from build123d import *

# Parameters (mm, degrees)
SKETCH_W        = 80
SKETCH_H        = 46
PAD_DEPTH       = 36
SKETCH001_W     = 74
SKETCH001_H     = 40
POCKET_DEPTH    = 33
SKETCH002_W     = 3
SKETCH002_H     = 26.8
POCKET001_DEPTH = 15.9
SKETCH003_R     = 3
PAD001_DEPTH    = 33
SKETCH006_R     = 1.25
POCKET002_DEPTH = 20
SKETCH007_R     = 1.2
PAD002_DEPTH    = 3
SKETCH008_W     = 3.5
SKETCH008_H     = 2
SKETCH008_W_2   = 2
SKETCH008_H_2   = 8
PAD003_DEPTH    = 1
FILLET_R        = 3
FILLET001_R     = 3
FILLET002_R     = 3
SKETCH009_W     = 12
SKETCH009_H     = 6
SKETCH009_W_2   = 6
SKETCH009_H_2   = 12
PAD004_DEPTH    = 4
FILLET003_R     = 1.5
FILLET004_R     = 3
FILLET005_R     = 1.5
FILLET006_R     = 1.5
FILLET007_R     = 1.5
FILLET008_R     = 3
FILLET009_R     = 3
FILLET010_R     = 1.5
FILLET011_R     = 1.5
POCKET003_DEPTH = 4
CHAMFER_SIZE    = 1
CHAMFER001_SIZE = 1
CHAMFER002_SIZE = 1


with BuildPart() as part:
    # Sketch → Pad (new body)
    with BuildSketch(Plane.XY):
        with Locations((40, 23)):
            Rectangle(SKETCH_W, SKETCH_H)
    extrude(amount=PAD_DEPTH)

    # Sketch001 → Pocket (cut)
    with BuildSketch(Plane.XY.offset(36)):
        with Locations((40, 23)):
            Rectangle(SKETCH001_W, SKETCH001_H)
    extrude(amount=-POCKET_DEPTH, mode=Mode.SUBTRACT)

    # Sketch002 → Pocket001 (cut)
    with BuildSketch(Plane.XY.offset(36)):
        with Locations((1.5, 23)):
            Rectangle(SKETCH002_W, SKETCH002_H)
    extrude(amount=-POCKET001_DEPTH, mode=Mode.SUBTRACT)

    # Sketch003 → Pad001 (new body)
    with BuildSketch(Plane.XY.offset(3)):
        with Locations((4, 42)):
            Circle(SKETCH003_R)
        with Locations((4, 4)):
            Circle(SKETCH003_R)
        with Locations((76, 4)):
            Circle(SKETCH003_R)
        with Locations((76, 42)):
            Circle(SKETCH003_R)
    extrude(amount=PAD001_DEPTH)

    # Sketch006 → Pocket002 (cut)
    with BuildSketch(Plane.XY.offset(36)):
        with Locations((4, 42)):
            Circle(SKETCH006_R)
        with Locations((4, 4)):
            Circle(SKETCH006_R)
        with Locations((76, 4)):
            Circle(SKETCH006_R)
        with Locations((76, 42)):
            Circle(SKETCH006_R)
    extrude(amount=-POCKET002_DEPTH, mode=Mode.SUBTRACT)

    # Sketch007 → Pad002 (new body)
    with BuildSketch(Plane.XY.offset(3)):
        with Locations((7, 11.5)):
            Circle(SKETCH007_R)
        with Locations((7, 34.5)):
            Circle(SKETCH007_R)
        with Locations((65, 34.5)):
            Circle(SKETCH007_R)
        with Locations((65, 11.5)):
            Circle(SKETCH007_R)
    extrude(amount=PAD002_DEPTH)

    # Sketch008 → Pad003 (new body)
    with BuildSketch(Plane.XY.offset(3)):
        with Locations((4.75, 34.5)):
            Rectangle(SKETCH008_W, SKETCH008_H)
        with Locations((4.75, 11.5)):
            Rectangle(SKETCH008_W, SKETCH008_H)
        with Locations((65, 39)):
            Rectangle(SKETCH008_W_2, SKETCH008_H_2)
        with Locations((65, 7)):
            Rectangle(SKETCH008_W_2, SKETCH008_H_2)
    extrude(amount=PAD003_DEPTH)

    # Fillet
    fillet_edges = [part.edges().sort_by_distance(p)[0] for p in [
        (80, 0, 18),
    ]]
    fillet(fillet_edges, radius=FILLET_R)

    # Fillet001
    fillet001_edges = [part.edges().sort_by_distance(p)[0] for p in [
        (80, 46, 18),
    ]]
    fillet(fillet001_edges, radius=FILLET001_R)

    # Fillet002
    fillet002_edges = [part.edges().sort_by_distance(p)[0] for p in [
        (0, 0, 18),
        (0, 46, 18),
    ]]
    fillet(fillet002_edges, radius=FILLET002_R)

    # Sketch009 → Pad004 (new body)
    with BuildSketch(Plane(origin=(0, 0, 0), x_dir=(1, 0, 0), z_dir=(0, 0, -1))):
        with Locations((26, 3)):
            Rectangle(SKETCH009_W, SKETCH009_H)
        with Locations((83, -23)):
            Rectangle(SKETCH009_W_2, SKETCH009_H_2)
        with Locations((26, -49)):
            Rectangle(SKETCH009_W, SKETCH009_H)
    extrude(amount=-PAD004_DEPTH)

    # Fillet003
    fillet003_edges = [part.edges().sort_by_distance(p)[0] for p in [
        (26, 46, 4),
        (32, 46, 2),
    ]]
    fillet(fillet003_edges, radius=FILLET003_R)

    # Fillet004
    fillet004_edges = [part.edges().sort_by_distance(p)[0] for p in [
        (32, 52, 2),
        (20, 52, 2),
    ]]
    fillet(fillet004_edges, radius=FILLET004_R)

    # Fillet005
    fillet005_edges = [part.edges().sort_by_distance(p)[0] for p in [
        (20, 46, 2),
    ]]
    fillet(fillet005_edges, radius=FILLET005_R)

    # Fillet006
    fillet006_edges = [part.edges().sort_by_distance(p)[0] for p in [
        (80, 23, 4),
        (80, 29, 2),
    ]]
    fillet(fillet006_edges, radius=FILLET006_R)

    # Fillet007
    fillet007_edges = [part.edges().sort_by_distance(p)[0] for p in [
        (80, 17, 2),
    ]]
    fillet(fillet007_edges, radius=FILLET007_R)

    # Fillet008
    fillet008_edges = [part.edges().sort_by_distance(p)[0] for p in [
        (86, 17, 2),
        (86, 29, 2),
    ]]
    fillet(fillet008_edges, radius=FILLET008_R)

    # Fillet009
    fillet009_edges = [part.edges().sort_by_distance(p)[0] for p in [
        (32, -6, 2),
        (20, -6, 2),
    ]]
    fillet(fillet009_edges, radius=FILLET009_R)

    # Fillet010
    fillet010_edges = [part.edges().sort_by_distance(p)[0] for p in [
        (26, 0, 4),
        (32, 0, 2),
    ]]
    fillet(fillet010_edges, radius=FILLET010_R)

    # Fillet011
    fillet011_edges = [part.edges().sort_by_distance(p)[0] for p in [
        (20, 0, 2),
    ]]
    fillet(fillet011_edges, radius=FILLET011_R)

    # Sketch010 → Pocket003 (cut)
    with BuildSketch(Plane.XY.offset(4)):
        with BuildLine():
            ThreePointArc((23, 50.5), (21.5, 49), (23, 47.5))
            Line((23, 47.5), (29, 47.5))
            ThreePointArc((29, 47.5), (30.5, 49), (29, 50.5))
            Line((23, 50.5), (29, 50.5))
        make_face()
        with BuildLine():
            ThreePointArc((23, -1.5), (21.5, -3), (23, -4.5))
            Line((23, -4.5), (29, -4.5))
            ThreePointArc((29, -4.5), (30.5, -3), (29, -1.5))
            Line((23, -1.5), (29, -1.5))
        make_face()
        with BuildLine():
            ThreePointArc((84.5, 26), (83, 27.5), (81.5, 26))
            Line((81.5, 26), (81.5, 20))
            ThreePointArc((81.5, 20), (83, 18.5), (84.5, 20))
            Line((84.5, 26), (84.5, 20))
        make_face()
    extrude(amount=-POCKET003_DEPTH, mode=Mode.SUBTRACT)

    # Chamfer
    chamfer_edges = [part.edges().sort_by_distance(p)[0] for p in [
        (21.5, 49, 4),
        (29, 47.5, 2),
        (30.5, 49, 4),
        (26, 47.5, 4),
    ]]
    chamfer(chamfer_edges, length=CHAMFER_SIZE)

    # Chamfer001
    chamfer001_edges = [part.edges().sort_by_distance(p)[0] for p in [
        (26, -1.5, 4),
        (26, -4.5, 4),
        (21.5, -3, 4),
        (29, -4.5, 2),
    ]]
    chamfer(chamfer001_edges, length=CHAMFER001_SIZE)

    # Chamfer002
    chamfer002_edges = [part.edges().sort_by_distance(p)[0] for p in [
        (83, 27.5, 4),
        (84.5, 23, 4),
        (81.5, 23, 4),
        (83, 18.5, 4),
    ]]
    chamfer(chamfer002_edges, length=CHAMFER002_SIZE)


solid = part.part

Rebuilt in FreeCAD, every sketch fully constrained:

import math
import FreeCAD as App
import Part
import Sketcher


def edges_at(feature, points):
    """Names of the edges that pass closest to the given points."""
    edges = feature.Shape.Edges
    near = lambda p: min(range(len(edges)), key=lambda i: edges[i].distToShape(Part.Vertex(*p))[0])
    return sorted({f"Edge{near(p) + 1}" for p in points})

doc = App.newDocument("Part")
params = doc.addObject("Spreadsheet::Sheet", "Params")
for row, (alias, value) in enumerate([
    ("sketch1_width", "80 mm"),
    ("sketch1_height", "46 mm"),
    ("pad1_length", "36 mm"),
    ("sketch2_width", "74 mm"),
    ("sketch2_height", "40 mm"),
    ("pocket1_length", "33 mm"),
    ("sketch3_width", "3 mm"),
    ("sketch3_height", "26.8 mm"),
    ("pocket2_length", "15.9 mm"),
    ("sketch4_diameter", "6 mm"),
    ("pad2_length", "33 mm"),
    ("sketch5_diameter", "2.5 mm"),
    ("pocket3_length", "20 mm"),
    ("sketch6_diameter", "2.4 mm"),
    ("pad3_length", "3 mm"),
    ("sketch7_width", "2 mm"),
    ("sketch7_height", "8 mm"),
    ("sketch7_width2", "3.5 mm"),
    ("pad4_length", "1 mm"),
    ("fillet_radius", "3 mm"),
    ("fillet2_radius", "3 mm"),
    ("fillet3_radius", "3 mm"),
    ("sketch8_width", "12 mm"),
    ("sketch8_width2", "6 mm"),
    ("pad5_length", "4 mm"),
    ("fillet4_radius", "1.5 mm"),
    ("fillet5_radius", "3 mm"),
    ("fillet6_radius", "1.5 mm"),
    ("fillet7_radius", "1.5 mm"),
    ("fillet8_radius", "1.5 mm"),
    ("fillet9_radius", "3 mm"),
    ("fillet10_radius", "3 mm"),
    ("fillet11_radius", "1.5 mm"),
    ("fillet12_radius", "1.5 mm"),
    ("sketch9_radius", "1.5 mm"),
    ("sketch9_width", "6 mm"),
    ("pocket4_length", "4 mm"),
    ("chamfer_size", "1 mm"),
    ("chamfer2_size", "1 mm"),
    ("chamfer3_size", "1 mm"),
], start=1):
    params.set(f"A{row}", alias)
    params.set(f"B{row}", "=" + value)
    params.setAlias(f"B{row}", alias)

body = doc.addObject("PartDesign::Body", "Body")

sketch1 = body.newObject("Sketcher::SketchObject", "Sketch")
sketch1.AttachmentSupport = (doc.getObject("XY_Plane"), [""])
sketch1.MapMode = "FlatFace"
sketch1.addGeometry([
    Part.LineSegment(App.Vector(0, 46, 0), App.Vector(0, 0, 0)),
    Part.LineSegment(App.Vector(0, 0, 0), App.Vector(80, 0, 0)),
    Part.LineSegment(App.Vector(80, 0, 0), App.Vector(80, 46, 0)),
    Part.LineSegment(App.Vector(80, 46, 0), App.Vector(0, 46, 0)),
], False)
sketch1.addConstraint([
    Sketcher.Constraint("Coincident", 0, 2, 1, 1),
    Sketcher.Constraint("Coincident", 1, 2, 2, 1),
    Sketcher.Constraint("Coincident", 2, 2, 3, 1),
    Sketcher.Constraint("Coincident", 3, 2, 0, 1),
    Sketcher.Constraint("Vertical", 0),
    Sketcher.Constraint("Horizontal", 1),
    Sketcher.Constraint("Vertical", 2),
    Sketcher.Constraint("Horizontal", 3),
    Sketcher.Constraint("Coincident", 0, 2, -1, 1),
    Sketcher.Constraint("DistanceX", 1, 1, 1, 2, 80.0),
    Sketcher.Constraint("DistanceY", 0, 2, 0, 1, 46.0),
])
sketch1.setExpression("Constraints[9]", "Params.sketch1_width")
sketch1.setExpression("Constraints[10]", "Params.sketch1_height")
pad1 = body.newObject("PartDesign::Pad", "Pad")
pad1.Profile = sketch1
pad1.setExpression("Length", "Params.pad1_length")

sketch2 = body.newObject("Sketcher::SketchObject", "Sketch001")
sketch2.AttachmentSupport = (doc.getObject("XY_Plane"), [""])
sketch2.MapMode = "FlatFace"
sketch2.AttachmentOffset = App.Placement(App.Vector(0, 0, 36), App.Rotation())
sketch2.addGeometry([
    Part.LineSegment(App.Vector(3, 43, 0), App.Vector(3, 3, 0)),
    Part.LineSegment(App.Vector(3, 3, 0), App.Vector(77, 3, 0)),
    Part.LineSegment(App.Vector(77, 3, 0), App.Vector(77, 43, 0)),
    Part.LineSegment(App.Vector(77, 43, 0), App.Vector(3, 43, 0)),
], False)
sketch2.addConstraint([
    Sketcher.Constraint("Coincident", 0, 2, 1, 1),
    Sketcher.Constraint("Coincident", 1, 2, 2, 1),
    Sketcher.Constraint("Coincident", 2, 2, 3, 1),
    Sketcher.Constraint("Coincident", 3, 2, 0, 1),
    Sketcher.Constraint("Vertical", 0),
    Sketcher.Constraint("Horizontal", 1),
    Sketcher.Constraint("Vertical", 2),
    Sketcher.Constraint("Horizontal", 3),
    Sketcher.Constraint("DistanceX", 1, 1, 1, 2, 74.0),
    Sketcher.Constraint("DistanceY", 0, 2, 0, 1, 40.0),
    Sketcher.Constraint("DistanceX", -1, 1, 0, 2, 3.0),
    Sketcher.Constraint("DistanceY", -1, 1, 0, 2, 3.0),
])
sketch2.setExpression("Constraints[8]", "Params.sketch2_width")
sketch2.setExpression("Constraints[9]", "Params.sketch2_height")
pocket1 = body.newObject("PartDesign::Pocket", "Pocket")
pocket1.Profile = sketch2
pocket1.setExpression("Length", "Params.pocket1_length")

sketch3 = body.newObject("Sketcher::SketchObject", "Sketch002")
sketch3.AttachmentSupport = (doc.getObject("XY_Plane"), [""])
sketch3.MapMode = "FlatFace"
sketch3.AttachmentOffset = App.Placement(App.Vector(0, 0, 36), App.Rotation())
sketch3.addGeometry([
    Part.LineSegment(App.Vector(0, 36.4, 0), App.Vector(0, 9.6, 0)),
    Part.LineSegment(App.Vector(0, 9.6, 0), App.Vector(3, 9.6, 0)),
    Part.LineSegment(App.Vector(3, 9.6, 0), App.Vector(3, 36.4, 0)),
    Part.LineSegment(App.Vector(3, 36.4, 0), App.Vector(0, 36.4, 0)),
], False)
sketch3.addConstraint([
    Sketcher.Constraint("Coincident", 0, 2, 1, 1),
    Sketcher.Constraint("Coincident", 1, 2, 2, 1),
    Sketcher.Constraint("Coincident", 2, 2, 3, 1),
    Sketcher.Constraint("Coincident", 3, 2, 0, 1),
    Sketcher.Constraint("Vertical", 0),
    Sketcher.Constraint("Horizontal", 1),
    Sketcher.Constraint("Vertical", 2),
    Sketcher.Constraint("Horizontal", 3),
    Sketcher.Constraint("PointOnObject", 0, 2, -2),
    Sketcher.Constraint("DistanceX", 1, 1, 1, 2, 3.0),
    Sketcher.Constraint("DistanceY", 0, 2, 0, 1, 26.8),
    Sketcher.Constraint("DistanceY", -1, 1, 0, 2, 9.6),
])
sketch3.setExpression("Constraints[9]", "Params.sketch3_width")
sketch3.setExpression("Constraints[10]", "Params.sketch3_height")
pocket2 = body.newObject("PartDesign::Pocket", "Pocket001")
pocket2.Profile = sketch3
pocket2.setExpression("Length", "Params.pocket2_length")

sketch4 = body.newObject("Sketcher::SketchObject", "Sketch003")
sketch4.AttachmentSupport = (doc.getObject("XY_Plane"), [""])
sketch4.MapMode = "FlatFace"
sketch4.AttachmentOffset = App.Placement(App.Vector(0, 0, 3), App.Rotation())
sketch4.addGeometry([
    Part.Circle(App.Vector(4, 42, 0), App.Vector(0, 0, 1), 3),
    Part.Circle(App.Vector(4, 4, 0), App.Vector(0, 0, 1), 3),
    Part.Circle(App.Vector(76, 4, 0), App.Vector(0, 0, 1), 3),
    Part.Circle(App.Vector(76, 42, 0), App.Vector(0, 0, 1), 3),
], False)
sketch4.addConstraint([
    Sketcher.Constraint("Equal", 0, 1),
    Sketcher.Constraint("Equal", 1, 2),
    Sketcher.Constraint("Equal", 2, 3),
    Sketcher.Constraint("Horizontal", 1, 3, 2, 3),
    Sketcher.Constraint("Horizontal", 0, 3, 3, 3),
    Sketcher.Constraint("Vertical", 0, 3, 1, 3),
    Sketcher.Constraint("Vertical", 2, 3, 3, 3),
    Sketcher.Constraint("Diameter", 0, 6.0),
    Sketcher.Constraint("DistanceX", -1, 1, 0, 3, 4.0),
    Sketcher.Constraint("DistanceY", -1, 1, 0, 3, 42.0),
    Sketcher.Constraint("DistanceY", -1, 1, 1, 3, 4.0),
    Sketcher.Constraint("DistanceX", -1, 1, 2, 3, 76.0),
])
sketch4.setExpression("Constraints[7]", "Params.sketch4_diameter")
pad2 = body.newObject("PartDesign::Pad", "Pad001")
pad2.Profile = sketch4
pad2.setExpression("Length", "Params.pad2_length")

sketch5 = body.newObject("Sketcher::SketchObject", "Sketch004")
sketch5.AttachmentSupport = (doc.getObject("XY_Plane"), [""])
sketch5.MapMode = "FlatFace"
sketch5.AttachmentOffset = App.Placement(App.Vector(0, 0, 36), App.Rotation())
sketch5.addGeometry([
    Part.Circle(App.Vector(4, 42, 0), App.Vector(0, 0, 1), 1.25),
    Part.Circle(App.Vector(4, 4, 0), App.Vector(0, 0, 1), 1.25),
    Part.Circle(App.Vector(76, 4, 0), App.Vector(0, 0, 1), 1.25),
    Part.Circle(App.Vector(76, 42, 0), App.Vector(0, 0, 1), 1.25),
], False)
sketch5.addConstraint([
    Sketcher.Constraint("Equal", 0, 1),
    Sketcher.Constraint("Equal", 1, 2),
    Sketcher.Constraint("Equal", 2, 3),
    Sketcher.Constraint("Horizontal", 1, 3, 2, 3),
    Sketcher.Constraint("Horizontal", 0, 3, 3, 3),
    Sketcher.Constraint("Vertical", 0, 3, 1, 3),
    Sketcher.Constraint("Vertical", 2, 3, 3, 3),
    Sketcher.Constraint("Diameter", 0, 2.5),
    Sketcher.Constraint("DistanceX", -1, 1, 0, 3, 4.0),
    Sketcher.Constraint("DistanceY", -1, 1, 0, 3, 42.0),
    Sketcher.Constraint("DistanceY", -1, 1, 1, 3, 4.0),
    Sketcher.Constraint("DistanceX", -1, 1, 2, 3, 76.0),
])
sketch5.setExpression("Constraints[7]", "Params.sketch5_diameter")
pocket3 = body.newObject("PartDesign::Pocket", "Pocket002")
pocket3.Profile = sketch5
pocket3.setExpression("Length", "Params.pocket3_length")

sketch6 = body.newObject("Sketcher::SketchObject", "Sketch005")
sketch6.AttachmentSupport = (doc.getObject("XY_Plane"), [""])
sketch6.MapMode = "FlatFace"
sketch6.AttachmentOffset = App.Placement(App.Vector(0, 0, 3), App.Rotation())
sketch6.addGeometry([
    Part.Circle(App.Vector(7, 11.5, 0), App.Vector(0, 0, 1), 1.2),
    Part.Circle(App.Vector(7, 34.5, 0), App.Vector(0, 0, 1), 1.2),
    Part.Circle(App.Vector(65, 34.5, 0), App.Vector(0, 0, 1), 1.2),
    Part.Circle(App.Vector(65, 11.5, 0), App.Vector(0, 0, 1), 1.2),
], False)
sketch6.addConstraint([
    Sketcher.Constraint("Equal", 0, 1),
    Sketcher.Constraint("Equal", 1, 2),
    Sketcher.Constraint("Equal", 2, 3),
    Sketcher.Constraint("Horizontal", 1, 3, 2, 3),
    Sketcher.Constraint("Horizontal", 0, 3, 3, 3),
    Sketcher.Constraint("Vertical", 0, 3, 1, 3),
    Sketcher.Constraint("Vertical", 2, 3, 3, 3),
    Sketcher.Constraint("Diameter", 0, 2.4),
    Sketcher.Constraint("DistanceX", -1, 1, 0, 3, 7.0),
    Sketcher.Constraint("DistanceX", -1, 1, 2, 3, 65.0),
    Sketcher.Constraint("DistanceY", 0, 3, 1, 3, 23.0),
    Sketcher.Constraint("DistanceY", -1, 1, 0, 3, 11.5),
])
sketch6.setExpression("Constraints[7]", "Params.sketch6_diameter")
pad3 = body.newObject("PartDesign::Pad", "Pad002")
pad3.Profile = sketch6
pad3.setExpression("Length", "Params.pad3_length")

sketch7 = body.newObject("Sketcher::SketchObject", "Sketch006")
sketch7.AttachmentSupport = (doc.getObject("XY_Plane"), [""])
sketch7.MapMode = "FlatFace"
sketch7.AttachmentOffset = App.Placement(App.Vector(0, 0, 3), App.Rotation())
sketch7.addGeometry([
    Part.LineSegment(App.Vector(3, 35.5, 0), App.Vector(3, 33.5, 0)),
    Part.LineSegment(App.Vector(3, 33.5, 0), App.Vector(6.5, 33.5, 0)),
    Part.LineSegment(App.Vector(6.5, 33.5, 0), App.Vector(6.5, 35.5, 0)),
    Part.LineSegment(App.Vector(6.5, 35.5, 0), App.Vector(3, 35.5, 0)),
    Part.LineSegment(App.Vector(3, 12.5, 0), App.Vector(3, 10.5, 0)),
    Part.LineSegment(App.Vector(3, 10.5, 0), App.Vector(6.5, 10.5, 0)),
    Part.LineSegment(App.Vector(6.5, 10.5, 0), App.Vector(6.5, 12.5, 0)),
    Part.LineSegment(App.Vector(6.5, 12.5, 0), App.Vector(3, 12.5, 0)),
    Part.LineSegment(App.Vector(64, 43, 0), App.Vector(64, 35, 0)),
    Part.LineSegment(App.Vector(64, 35, 0), App.Vector(66, 35, 0)),
    Part.LineSegment(App.Vector(66, 35, 0), App.Vector(66, 43, 0)),
    Part.LineSegment(App.Vector(66, 43, 0), App.Vector(64, 43, 0)),
    Part.LineSegment(App.Vector(64, 11, 0), App.Vector(64, 3, 0)),
    Part.LineSegment(App.Vector(64, 3, 0), App.Vector(66, 3, 0)),
    Part.LineSegment(App.Vector(66, 3, 0), App.Vector(66, 11, 0)),
    Part.LineSegment(App.Vector(66, 11, 0), App.Vector(64, 11, 0)),
], False)
sketch7.addConstraint([
    Sketcher.Constraint("Coincident", 0, 2, 1, 1),
    Sketcher.Constraint("Coincident", 1, 2, 2, 1),
    Sketcher.Constraint("Coincident", 2, 2, 3, 1),
    Sketcher.Constraint("Coincident", 3, 2, 0, 1),
    Sketcher.Constraint("Coincident", 4, 2, 5, 1),
    Sketcher.Constraint("Coincident", 5, 2, 6, 1),
    Sketcher.Constraint("Coincident", 6, 2, 7, 1),
    Sketcher.Constraint("Coincident", 7, 2, 4, 1),
    Sketcher.Constraint("Coincident", 8, 2, 9, 1),
    Sketcher.Constraint("Coincident", 9, 2, 10, 1),
    Sketcher.Constraint("Coincident", 10, 2, 11, 1),
    Sketcher.Constraint("Coincident", 11, 2, 8, 1),
    Sketcher.Constraint("Coincident", 12, 2, 13, 1),
    Sketcher.Constraint("Coincident", 13, 2, 14, 1),
    Sketcher.Constraint("Coincident", 14, 2, 15, 1),
    Sketcher.Constraint("Coincident", 15, 2, 12, 1),
    Sketcher.Constraint("Vertical", 0),
    Sketcher.Constraint("Horizontal", 1),
    Sketcher.Constraint("Vertical", 2),
    Sketcher.Constraint("Horizontal", 3),
    Sketcher.Constraint("Vertical", 4),
    Sketcher.Constraint("Horizontal", 5),
    Sketcher.Constraint("Vertical", 6),
    Sketcher.Constraint("Horizontal", 7),
    Sketcher.Constraint("Vertical", 8),
    Sketcher.Constraint("Horizontal", 9),
    Sketcher.Constraint("Vertical", 10),
    Sketcher.Constraint("Horizontal", 11),
    Sketcher.Constraint("Vertical", 12),
    Sketcher.Constraint("Horizontal", 13),
    Sketcher.Constraint("Vertical", 14),
    Sketcher.Constraint("Horizontal", 15),
    Sketcher.Constraint("Vertical", 3, 2, 4, 2),
    Sketcher.Constraint("Vertical", 2, 2, 5, 2),
    Sketcher.Constraint("Vertical", 11, 2, 12, 2),
    Sketcher.Constraint("Vertical", 10, 2, 13, 2),
    Sketcher.Constraint("Equal", 15, 0),
    Sketcher.Constraint("Equal", 2, 4),
    Sketcher.Constraint("Equal", 10, 12),
    Sketcher.Constraint("DistanceX", 9, 1, 9, 2, 2.0),
    Sketcher.Constraint("DistanceY", 8, 2, 8, 1, 8.0),
    Sketcher.Constraint("DistanceX", 1, 1, 1, 2, 3.5),
    Sketcher.Constraint("DistanceX", -1, 1, 0, 2, 3.0),
    Sketcher.Constraint("DistanceX", -1, 1, 8, 2, 64.0),
    Sketcher.Constraint("DistanceY", -1, 1, 8, 2, 35.0),
    Sketcher.Constraint("DistanceY", -1, 1, 12, 2, 3.0),
    Sketcher.Constraint("DistanceY", 4, 2, 0, 2, 23.0),
    Sketcher.Constraint("DistanceY", -1, 1, 0, 2, 33.5),
])
sketch7.setExpression("Constraints[39]", "Params.sketch7_width")
sketch7.setExpression("Constraints[40]", "Params.sketch7_height")
sketch7.setExpression("Constraints[41]", "Params.sketch7_width2")
pad4 = body.newObject("PartDesign::Pad", "Pad003")
pad4.Profile = sketch7
pad4.setExpression("Length", "Params.pad4_length")
doc.recompute()

fillet = body.newObject("PartDesign::Fillet", "Fillet")
fillet.Base = (pad4, edges_at(pad4, [(80, 0, 18)]))
fillet.setExpression("Radius", "Params.fillet_radius")
doc.recompute()

fillet2 = body.newObject("PartDesign::Fillet", "Fillet001")
fillet2.Base = (fillet, edges_at(fillet, [(80, 46, 18)]))
fillet2.setExpression("Radius", "Params.fillet2_radius")
doc.recompute()

fillet3 = body.newObject("PartDesign::Fillet", "Fillet002")
fillet3.Base = (fillet2, edges_at(fillet2, [(0, 0, 18), (0, 46, 18)]))
fillet3.setExpression("Radius", "Params.fillet3_radius")

sketch8 = body.newObject("Sketcher::SketchObject", "Sketch007")
sketch8.AttachmentSupport = (doc.getObject("XY_Plane"), [""])
sketch8.MapMode = "FlatFace"
sketch8.addGeometry([
    Part.LineSegment(App.Vector(20, -6, 0), App.Vector(20, 0, 0)),
    Part.LineSegment(App.Vector(20, 0, 0), App.Vector(32, 0, 0)),
    Part.LineSegment(App.Vector(32, 0, 0), App.Vector(32, -6, 0)),
    Part.LineSegment(App.Vector(32, -6, 0), App.Vector(20, -6, 0)),
    Part.LineSegment(App.Vector(80, 17, 0), App.Vector(80, 29, 0)),
    Part.LineSegment(App.Vector(80, 29, 0), App.Vector(86, 29, 0)),
    Part.LineSegment(App.Vector(86, 29, 0), App.Vector(86, 17, 0)),
    Part.LineSegment(App.Vector(86, 17, 0), App.Vector(80, 17, 0)),
    Part.LineSegment(App.Vector(20, 46, 0), App.Vector(20, 52, 0)),
    Part.LineSegment(App.Vector(20, 52, 0), App.Vector(32, 52, 0)),
    Part.LineSegment(App.Vector(32, 52, 0), App.Vector(32, 46, 0)),
    Part.LineSegment(App.Vector(32, 46, 0), App.Vector(20, 46, 0)),
], False)
sketch8.addConstraint([
    Sketcher.Constraint("Coincident", 0, 2, 1, 1),
    Sketcher.Constraint("Coincident", 1, 2, 2, 1),
    Sketcher.Constraint("Coincident", 2, 2, 3, 1),
    Sketcher.Constraint("Coincident", 3, 2, 0, 1),
    Sketcher.Constraint("Coincident", 4, 2, 5, 1),
    Sketcher.Constraint("Coincident", 5, 2, 6, 1),
    Sketcher.Constraint("Coincident", 6, 2, 7, 1),
    Sketcher.Constraint("Coincident", 7, 2, 4, 1),
    Sketcher.Constraint("Coincident", 8, 2, 9, 1),
    Sketcher.Constraint("Coincident", 9, 2, 10, 1),
    Sketcher.Constraint("Coincident", 10, 2, 11, 1),
    Sketcher.Constraint("Coincident", 11, 2, 8, 1),
    Sketcher.Constraint("Vertical", 0),
    Sketcher.Constraint("Horizontal", 1),
    Sketcher.Constraint("Vertical", 2),
    Sketcher.Constraint("Horizontal", 3),
    Sketcher.Constraint("Vertical", 4),
    Sketcher.Constraint("Horizontal", 5),
    Sketcher.Constraint("Vertical", 6),
    Sketcher.Constraint("Horizontal", 7),
    Sketcher.Constraint("Vertical", 8),
    Sketcher.Constraint("Horizontal", 9),
    Sketcher.Constraint("Vertical", 10),
    Sketcher.Constraint("Horizontal", 11),
    Sketcher.Constraint("PointOnObject", 0, 2, -1),
    Sketcher.Constraint("Vertical", 3, 2, 8, 2),
    Sketcher.Constraint("Vertical", 2, 2, 9, 2),
    Sketcher.Constraint("Equal", 7, 0),
    Sketcher.Constraint("Equal", 11, 4),
    Sketcher.Constraint("Equal", 2, 8),
    Sketcher.Constraint("DistanceX", 1, 1, 1, 2, 12.0),
    Sketcher.Constraint("DistanceX", 5, 1, 5, 2, 6.0),
    Sketcher.Constraint("DistanceX", -1, 1, 0, 2, 20.0),
    Sketcher.Constraint("DistanceX", -1, 1, 4, 2, 80.0),
    Sketcher.Constraint("DistanceY", -1, 1, 4, 2, 29.0),
    Sketcher.Constraint("DistanceY", -1, 1, 8, 2, 52.0),
])
sketch8.setExpression("Constraints[30]", "Params.sketch8_width")
sketch8.setExpression("Constraints[31]", "Params.sketch8_width2")
pad5 = body.newObject("PartDesign::Pad", "Pad004")
pad5.Profile = sketch8
pad5.setExpression("Length", "Params.pad5_length")
doc.recompute()

fillet4 = body.newObject("PartDesign::Fillet", "Fillet003")
fillet4.Base = (pad5, edges_at(pad5, [(26, 46, 4), (32, 46, 2)]))
fillet4.setExpression("Radius", "Params.fillet4_radius")
doc.recompute()

fillet5 = body.newObject("PartDesign::Fillet", "Fillet004")
fillet5.Base = (fillet4, edges_at(fillet4, [(32, 52, 2), (20, 52, 2)]))
fillet5.setExpression("Radius", "Params.fillet5_radius")
doc.recompute()

fillet6 = body.newObject("PartDesign::Fillet", "Fillet005")
fillet6.Base = (fillet5, edges_at(fillet5, [(20, 46, 2.75)]))
fillet6.setExpression("Radius", "Params.fillet6_radius")
doc.recompute()

fillet7 = body.newObject("PartDesign::Fillet", "Fillet006")
fillet7.Base = (fillet6, edges_at(fillet6, [(80, 23, 4), (80, 29, 2)]))
fillet7.setExpression("Radius", "Params.fillet7_radius")
doc.recompute()

fillet8 = body.newObject("PartDesign::Fillet", "Fillet007")
fillet8.Base = (fillet7, edges_at(fillet7, [(80, 17, 2.75)]))
fillet8.setExpression("Radius", "Params.fillet8_radius")
doc.recompute()

fillet9 = body.newObject("PartDesign::Fillet", "Fillet008")
fillet9.Base = (fillet8, edges_at(fillet8, [(86, 17, 2), (86, 29, 2)]))
fillet9.setExpression("Radius", "Params.fillet9_radius")
doc.recompute()

fillet10 = body.newObject("PartDesign::Fillet", "Fillet009")
fillet10.Base = (fillet9, edges_at(fillet9, [(32, -6, 2), (20, -6, 2)]))
fillet10.setExpression("Radius", "Params.fillet10_radius")
doc.recompute()

fillet11 = body.newObject("PartDesign::Fillet", "Fillet010")
fillet11.Base = (fillet10, edges_at(fillet10, [(26, 0, 4), (32, 0, 2)]))
fillet11.setExpression("Radius", "Params.fillet11_radius")
doc.recompute()

fillet12 = body.newObject("PartDesign::Fillet", "Fillet011")
fillet12.Base = (fillet11, edges_at(fillet11, [(20, 0, 2.75)]))
fillet12.setExpression("Radius", "Params.fillet12_radius")

sketch9 = body.newObject("Sketcher::SketchObject", "Sketch008")
sketch9.AttachmentSupport = (doc.getObject("XY_Plane"), [""])
sketch9.MapMode = "FlatFace"
sketch9.AttachmentOffset = App.Placement(App.Vector(0, 0, 4), App.Rotation())
sketch9.addGeometry([
    Part.ArcOfCircle(Part.Circle(App.Vector(23, 49, 0), App.Vector(0, 0, 1), 1.5), math.radians(90), math.radians(270)),
    Part.LineSegment(App.Vector(23, 47.5, 0), App.Vector(29, 47.5, 0)),
    Part.ArcOfCircle(Part.Circle(App.Vector(29, 49, 0), App.Vector(0, 0, 1), 1.5), math.radians(-90), math.radians(90)),
    Part.LineSegment(App.Vector(29, 50.5, 0), App.Vector(23, 50.5, 0)),
    Part.ArcOfCircle(Part.Circle(App.Vector(23, -3, 0), App.Vector(0, 0, 1), 1.5), math.radians(90), math.radians(270)),
    Part.LineSegment(App.Vector(23, -4.5, 0), App.Vector(29, -4.5, 0)),
    Part.ArcOfCircle(Part.Circle(App.Vector(29, -3, 0), App.Vector(0, 0, 1), 1.5), math.radians(-90), math.radians(90)),
    Part.LineSegment(App.Vector(29, -1.5, 0), App.Vector(23, -1.5, 0)),
    Part.ArcOfCircle(Part.Circle(App.Vector(83, 26, 0), App.Vector(0, 0, 1), 1.5), math.radians(0), math.radians(180)),
    Part.LineSegment(App.Vector(81.5, 26, 0), App.Vector(81.5, 20, 0)),
    Part.ArcOfCircle(Part.Circle(App.Vector(83, 20, 0), App.Vector(0, 0, 1), 1.5), math.radians(180), math.radians(360)),
    Part.LineSegment(App.Vector(84.5, 20, 0), App.Vector(84.5, 26, 0)),
], False)
sketch9.addConstraint([
    Sketcher.Constraint("Tangent", 0, 2, 1, 1),
    Sketcher.Constraint("Tangent", 1, 2, 2, 1),
    Sketcher.Constraint("Tangent", 2, 2, 3, 1),
    Sketcher.Constraint("Tangent", 3, 2, 0, 1),
    Sketcher.Constraint("Tangent", 4, 2, 5, 1),
    Sketcher.Constraint("Tangent", 5, 2, 6, 1),
    Sketcher.Constraint("Tangent", 6, 2, 7, 1),
    Sketcher.Constraint("Tangent", 7, 2, 4, 1),
    Sketcher.Constraint("Tangent", 8, 2, 9, 1),
    Sketcher.Constraint("Tangent", 9, 2, 10, 1),
    Sketcher.Constraint("Tangent", 10, 2, 11, 1),
    Sketcher.Constraint("Tangent", 11, 2, 8, 1),
    Sketcher.Constraint("Horizontal", 1),
    Sketcher.Constraint("Horizontal", 3),
    Sketcher.Constraint("Horizontal", 5),
    Sketcher.Constraint("Horizontal", 7),
    Sketcher.Constraint("Vertical", 9),
    Sketcher.Constraint("Vertical", 11),
    Sketcher.Constraint("Equal", 2, 4),
    Sketcher.Constraint("Equal", 6, 8),
    Sketcher.Constraint("Vertical", 0, 3, 4, 3),
    Sketcher.Constraint("Vertical", 2, 3, 6, 3),
    Sketcher.Constraint("Equal", 7, 9),
    Sketcher.Constraint("Radius", 0, 1.5),
    Sketcher.Constraint("DistanceX", 1, 1, 1, 2, 6.0),
    Sketcher.Constraint("DistanceX", -1, 1, 0, 3, 23.0),
    Sketcher.Constraint("DistanceY", -1, 1, 0, 3, 49.0),
    Sketcher.Constraint("DistanceY", 4, 3, -1, 1, 3.0),
    Sketcher.Constraint("DistanceX", -1, 1, 8, 3, 83.0),
    Sketcher.Constraint("DistanceY", -1, 1, 8, 3, 26.0),
])
sketch9.setExpression("Constraints[23]", "Params.sketch9_radius")
sketch9.setExpression("Constraints[24]", "Params.sketch9_width")
pocket4 = body.newObject("PartDesign::Pocket", "Pocket003")
pocket4.Profile = sketch9
pocket4.setExpression("Length", "Params.pocket4_length")
doc.recompute()

chamfer = body.newObject("PartDesign::Chamfer", "Chamfer")
chamfer.Base = (pocket4, edges_at(pocket4, [
    (21.5, 49, 4),
    (29, 47.5, 2),
    (30.5, 49, 4),
    (26, 47.5, 4),
]))
chamfer.setExpression("Size", "Params.chamfer_size")
doc.recompute()

chamfer2 = body.newObject("PartDesign::Chamfer", "Chamfer001")
chamfer2.Base = (chamfer, edges_at(chamfer, [
    (26, -1.5, 4),
    (26, -4.5, 4),
    (21.5, -3, 4),
    (29, -4.5, 2),
]))
chamfer2.setExpression("Size", "Params.chamfer2_size")
doc.recompute()

chamfer3 = body.newObject("PartDesign::Chamfer", "Chamfer002")
chamfer3.Base = (chamfer2, edges_at(chamfer2, [
    (83, 27.5, 4),
    (84.5, 23, 4),
    (81.5, 23, 4),
    (83, 18.5, 4),
]))
chamfer3.setExpression("Size", "Params.chamfer3_size")

doc.recompute()
